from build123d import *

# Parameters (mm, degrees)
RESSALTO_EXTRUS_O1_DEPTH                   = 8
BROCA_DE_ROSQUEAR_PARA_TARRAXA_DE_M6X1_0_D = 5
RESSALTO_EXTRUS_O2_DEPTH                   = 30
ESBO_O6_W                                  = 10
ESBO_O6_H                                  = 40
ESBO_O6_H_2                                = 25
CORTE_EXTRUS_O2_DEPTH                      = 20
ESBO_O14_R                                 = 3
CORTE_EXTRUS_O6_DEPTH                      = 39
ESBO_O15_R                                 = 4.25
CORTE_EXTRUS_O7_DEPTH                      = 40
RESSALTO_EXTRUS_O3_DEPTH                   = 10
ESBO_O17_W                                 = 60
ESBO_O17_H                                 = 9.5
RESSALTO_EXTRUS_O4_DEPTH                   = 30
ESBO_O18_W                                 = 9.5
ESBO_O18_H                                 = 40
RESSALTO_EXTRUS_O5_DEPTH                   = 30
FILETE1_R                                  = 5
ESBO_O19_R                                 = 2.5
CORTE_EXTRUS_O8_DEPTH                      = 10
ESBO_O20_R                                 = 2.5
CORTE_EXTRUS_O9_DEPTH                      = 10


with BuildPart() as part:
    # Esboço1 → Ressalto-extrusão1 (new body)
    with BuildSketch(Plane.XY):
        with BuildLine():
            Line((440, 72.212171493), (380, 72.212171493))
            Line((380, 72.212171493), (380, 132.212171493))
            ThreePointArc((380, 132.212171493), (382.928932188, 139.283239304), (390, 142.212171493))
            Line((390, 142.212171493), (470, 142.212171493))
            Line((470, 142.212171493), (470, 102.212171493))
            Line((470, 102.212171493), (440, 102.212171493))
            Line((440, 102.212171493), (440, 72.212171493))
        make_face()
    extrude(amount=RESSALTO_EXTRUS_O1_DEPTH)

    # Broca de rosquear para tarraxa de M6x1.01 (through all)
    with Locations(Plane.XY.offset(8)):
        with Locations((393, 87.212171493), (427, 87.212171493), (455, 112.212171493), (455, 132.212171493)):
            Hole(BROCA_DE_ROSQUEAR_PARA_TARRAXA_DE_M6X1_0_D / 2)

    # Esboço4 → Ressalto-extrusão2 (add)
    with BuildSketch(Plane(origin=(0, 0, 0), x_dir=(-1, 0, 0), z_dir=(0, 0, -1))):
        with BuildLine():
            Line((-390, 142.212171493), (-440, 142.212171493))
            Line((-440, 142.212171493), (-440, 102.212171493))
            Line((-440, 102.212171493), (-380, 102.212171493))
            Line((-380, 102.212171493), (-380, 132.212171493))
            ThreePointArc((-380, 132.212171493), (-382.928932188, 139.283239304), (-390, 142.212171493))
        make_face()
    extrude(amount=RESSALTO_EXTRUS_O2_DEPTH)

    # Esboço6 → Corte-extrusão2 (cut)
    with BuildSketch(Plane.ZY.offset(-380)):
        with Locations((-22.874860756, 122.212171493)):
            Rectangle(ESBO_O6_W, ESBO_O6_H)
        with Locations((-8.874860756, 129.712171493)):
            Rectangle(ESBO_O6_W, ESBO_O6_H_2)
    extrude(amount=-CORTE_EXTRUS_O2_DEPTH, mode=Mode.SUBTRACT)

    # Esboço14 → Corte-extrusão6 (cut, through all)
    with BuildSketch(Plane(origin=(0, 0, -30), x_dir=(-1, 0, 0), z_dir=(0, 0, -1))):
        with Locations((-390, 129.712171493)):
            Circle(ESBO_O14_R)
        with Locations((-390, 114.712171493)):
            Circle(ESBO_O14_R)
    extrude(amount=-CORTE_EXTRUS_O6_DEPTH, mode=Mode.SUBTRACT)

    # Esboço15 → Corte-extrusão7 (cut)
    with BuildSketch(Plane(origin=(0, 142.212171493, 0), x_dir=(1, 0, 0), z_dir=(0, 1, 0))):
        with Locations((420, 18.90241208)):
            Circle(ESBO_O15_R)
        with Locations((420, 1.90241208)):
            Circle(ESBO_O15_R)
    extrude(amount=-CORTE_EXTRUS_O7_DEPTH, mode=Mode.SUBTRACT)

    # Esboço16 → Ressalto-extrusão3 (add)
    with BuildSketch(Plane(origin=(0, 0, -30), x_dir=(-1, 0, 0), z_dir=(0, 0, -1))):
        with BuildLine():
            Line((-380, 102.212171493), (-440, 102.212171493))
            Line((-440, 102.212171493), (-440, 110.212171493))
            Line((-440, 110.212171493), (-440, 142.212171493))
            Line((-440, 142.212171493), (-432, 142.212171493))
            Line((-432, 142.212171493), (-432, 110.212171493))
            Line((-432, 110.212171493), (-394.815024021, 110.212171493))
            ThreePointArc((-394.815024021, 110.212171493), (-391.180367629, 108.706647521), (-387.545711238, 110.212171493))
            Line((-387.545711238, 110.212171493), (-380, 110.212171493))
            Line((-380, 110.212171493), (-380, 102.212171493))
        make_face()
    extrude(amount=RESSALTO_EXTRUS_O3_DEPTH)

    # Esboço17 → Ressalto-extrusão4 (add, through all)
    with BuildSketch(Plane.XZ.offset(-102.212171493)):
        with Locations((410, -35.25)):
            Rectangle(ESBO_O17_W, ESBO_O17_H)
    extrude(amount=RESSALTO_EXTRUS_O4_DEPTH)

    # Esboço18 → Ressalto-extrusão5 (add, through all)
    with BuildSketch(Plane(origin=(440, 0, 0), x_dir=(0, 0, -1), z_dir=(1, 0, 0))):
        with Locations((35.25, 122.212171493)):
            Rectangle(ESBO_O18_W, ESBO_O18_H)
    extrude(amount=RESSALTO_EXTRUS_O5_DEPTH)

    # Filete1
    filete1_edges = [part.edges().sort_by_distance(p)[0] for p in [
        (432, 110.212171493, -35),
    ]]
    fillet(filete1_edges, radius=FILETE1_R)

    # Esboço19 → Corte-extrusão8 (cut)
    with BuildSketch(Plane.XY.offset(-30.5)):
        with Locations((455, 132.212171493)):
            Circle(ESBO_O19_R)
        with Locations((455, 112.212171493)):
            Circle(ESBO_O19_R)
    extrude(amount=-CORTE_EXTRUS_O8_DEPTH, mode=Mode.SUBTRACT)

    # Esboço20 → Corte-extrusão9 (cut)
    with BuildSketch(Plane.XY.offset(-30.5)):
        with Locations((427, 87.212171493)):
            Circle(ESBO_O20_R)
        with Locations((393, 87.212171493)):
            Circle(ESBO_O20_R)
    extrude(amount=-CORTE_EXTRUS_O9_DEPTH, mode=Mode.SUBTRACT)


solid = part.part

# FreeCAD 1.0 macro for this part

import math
import FreeCAD as App
import Part
import Sketcher

V = App.Vector


def edges_at(feature, points):
    """Names of the edges that pass closest to the given points."""
    edges = feature.Shape.Edges
    near = lambda p: min(range(len(edges)), key=lambda i: edges[i].distToShape(Part.Vertex(*p))[0])
    return sorted({f"Edge{near(p) + 1}" for p in points})


def add_polygon(sketch, points):
    """Adds a closed chain of lines whose ends are joined by coincident constraints."""
    first, n = sketch.GeometryCount, len(points)
    for a, b in zip(points, points[1:] + points[:1]):
        sketch.addGeometry(Part.LineSegment(App.Vector(*a, 0), App.Vector(*b, 0)), False)
    for i in range(n):
        sketch.addConstraint(Sketcher.Constraint("Coincident", first + i, 2, first + (i + 1) % n, 1))

doc = App.newDocument("Part")
body = doc.addObject("PartDesign::Body", "Body")

sketch1 = body.newObject("Sketcher::SketchObject", "Sketch")
sketch1.AttachmentSupport = (doc.getObject("XY_Plane"), [""])
sketch1.MapMode = "FlatFace"
sketch1.addGeometry(Part.LineSegment(V(380, 72.212171, 0), V(440, 72.212171, 0)), False)
sketch1.addGeometry(Part.LineSegment(V(440, 72.212171, 0), V(440, 102.212171, 0)), False)
sketch1.addGeometry(Part.LineSegment(V(440, 102.212171, 0), V(470, 102.212171, 0)), False)
sketch1.addGeometry(Part.LineSegment(V(470, 102.212171, 0), V(470, 142.212171, 0)), False)
sketch1.addGeometry(Part.LineSegment(V(470, 142.212171, 0), V(390, 142.212171, 0)), False)
sketch1.addGeometry(Part.ArcOfCircle(Part.Circle(V(390, 132.212171, 0), V(0, 0, 1), 10), math.radians(90), math.radians(180)), False)
sketch1.addGeometry(Part.LineSegment(V(380, 132.212171, 0), V(380, 72.212171, 0)), False)
sketch1.addConstraint(Sketcher.Constraint("Coincident", 0, 2, 1, 1))
sketch1.addConstraint(Sketcher.Constraint("Coincident", 1, 2, 2, 1))
sketch1.addConstraint(Sketcher.Constraint("Coincident", 2, 2, 3, 1))
sketch1.addConstraint(Sketcher.Constraint("Coincident", 3, 2, 4, 1))
sketch1.addConstraint(Sketcher.Constraint("Tangent", 4, 2, 5, 1))
sketch1.addConstraint(Sketcher.Constraint("Tangent", 5, 2, 6, 1))
sketch1.addConstraint(Sketcher.Constraint("Coincident", 6, 2, 0, 1))
sketch1.addConstraint(Sketcher.Constraint("Horizontal", 0))
sketch1.addConstraint(Sketcher.Constraint("Vertical", 1))
sketch1.addConstraint(Sketcher.Constraint("Horizontal", 2))
sketch1.addConstraint(Sketcher.Constraint("Vertical", 3))
sketch1.addConstraint(Sketcher.Constraint("Horizontal", 4))
sketch1.addConstraint(Sketcher.Constraint("Vertical", 6))
sketch1.addConstraint(Sketcher.Constraint("Equal", 2, 1))
sketch1.addConstraint(Sketcher.Constraint("Equal", 0, 6))
sketch1.addConstraint(Sketcher.Constraint("Radius", 5, 10.0))
sketch1.addConstraint(Sketcher.Constraint("DistanceX", 0, 1, 0, 2, 60.0))
sketch1.addConstraint(Sketcher.Constraint("DistanceX", 2, 1, 2, 2, 30.0))
sketch1.addConstraint(Sketcher.Constraint("DistanceX", -1, 1, 5, 3, 390.0))
sketch1.addConstraint(Sketcher.Constraint("DistanceY", -1, 1, 5, 3, 132.212171))
pad1 = body.newObject("PartDesign::Pad", "Pad")
pad1.Profile = sketch1
pad1.Length = 8

sketch2 = body.newObject("Sketcher::SketchObject", "Sketch001")
sketch2.AttachmentSupport = (doc.getObject("XY_Plane"), [""])
sketch2.MapMode = "FlatFace"
sketch2.AttachmentOffset = App.Placement(V(0, 0, 8), App.Rotation())
sketch2.addGeometry(Part.Circle(V(393, 87.212171, 0), V(0, 0, 1), 2.5), False)
sketch2.addGeometry(Part.Circle(V(427, 87.212171, 0), V(0, 0, 1), 2.5), False)
sketch2.addGeometry(Part.Circle(V(455, 112.212171, 0), V(0, 0, 1), 2.5), False)
sketch2.addGeometry(Part.Circle(V(455, 132.212171, 0), V(0, 0, 1), 2.5), False)
sketch2.addConstraint(Sketcher.Constraint("Equal", 0, 1))
sketch2.addConstraint(Sketcher.Constraint("Equal", 1, 2))
sketch2.addConstraint(Sketcher.Constraint("Equal", 2, 3))
sketch2.addConstraint(Sketcher.Constraint("Horizontal", 0, 3, 1, 3))
sketch2.addConstraint(Sketcher.Constraint("Vertical", 2, 3, 3, 3))
sketch2.addConstraint(Sketcher.Constraint("Diameter", 0, 5.0))
sketch2.addConstraint(Sketcher.Constraint("DistanceX", -1, 1, 0, 3, 393.0))
sketch2.addConstraint(Sketcher.Constraint("DistanceX", -1, 1, 1, 3, 427.0))
sketch2.addConstraint(Sketcher.Constraint("DistanceX", -1, 1, 2, 3, 455.0))
sketch2.addConstraint(Sketcher.Constraint("DistanceY", 1, 3, 2, 3, 25.0))
sketch2.addConstraint(Sketcher.Constraint("DistanceY", 2, 3, 3, 3, 20.0))
sketch2.addConstraint(Sketcher.Constraint("DistanceY", -1, 1, 0, 3, 87.212171))
doc.recompute()
hole = body.newObject("PartDesign::Hole", "Hole")
hole.Profile = sketch2
hole.ThreadType = "None"
hole.Diameter = 5
hole.DepthType = "ThroughAll"

sketch3 = body.newObject("Sketcher::SketchObject", "Sketch002")
sketch3.AttachmentSupport = (doc.getObject("XY_Plane"), [""])
sketch3.MapMode = "FlatFace"
sketch3.addGeometry(Part.LineSegment(V(390, 142.212171, 0), V(440, 142.212171, 0)), False)
sketch3.addGeometry(Part.LineSegment(V(440, 142.212171, 0), V(440, 102.212171, 0)), False)
sketch3.addGeometry(Part.LineSegment(V(440, 102.212171, 0), V(380, 102.212171, 0)), False)
sketch3.addGeometry(Part.LineSegment(V(380, 102.212171, 0), V(380, 132.212171, 0)), False)
sketch3.addGeometry(Part.ArcOfCircle(Part.Circle(V(390, 132.212171, 0), V(0, 0, 1), 10), math.radians(90), math.radians(180)), False)
sketch3.addConstraint(Sketcher.Constraint("Coincident", 0, 2, 1, 1))
sketch3.addConstraint(Sketcher.Constraint("Coincident", 1, 2, 2, 1))
sketch3.addConstraint(Sketcher.Constraint("Coincident", 2, 2, 3, 1))
sketch3.addConstraint(Sketcher.Constraint("Tangent", 3, 2, 4, 2))
sketch3.addConstraint(Sketcher.Constraint("Tangent", 4, 1, 0, 1))
sketch3.addConstraint(Sketcher.Constraint("Horizontal", 0))
sketch3.addConstraint(Sketcher.Constraint("Vertical", 1))
sketch3.addConstraint(Sketcher.Constraint("Horizontal", 2))
sketch3.addConstraint(Sketcher.Constraint("Vertical", 3))
sketch3.addConstraint(Sketcher.Constraint("Radius", 4, 10.0))
sketch3.addConstraint(Sketcher.Constraint("DistanceX", 0, 1, 0, 2, 50.0))
sketch3.addConstraint(Sketcher.Constraint("DistanceY", 1, 2, 1, 1, 40.0))
sketch3.addConstraint(Sketcher.Constraint("DistanceX", -1, 1, 4, 3, 390.0))
sketch3.addConstraint(Sketcher.Constraint("DistanceY", -1, 1, 4, 3, 132.212171))
pad2 = body.newObject("PartDesign::Pad", "Pad001")
pad2.Profile = sketch3
pad2.Length = 30
pad2.Reversed = True

sketch4 = body.newObject("Sketcher::SketchObject", "Sketch003")
sketch4.AttachmentSupport = (doc.getObject("YZ_Plane"), [""])
sketch4.MapMode = "FlatFace"
sketch4.AttachmentOffset = App.Placement(V(0, 0, 380), App.Rotation())
add_polygon(sketch4, [(142.212171, -27.874861), (102.212171, -27.874861), (102.212171, -17.874861), (142.212171, -17.874861)])
add_polygon(sketch4, [(142.212171, -13.874861), (117.212171, -13.874861), (117.212171, -3.874861), (142.212171, -3.874861)])
sketch4.addConstraint(Sketcher.Constraint("Horizontal", 0))
sketch4.addConstraint(Sketcher.Constraint("Vertical", 1))
sketch4.addConstraint(Sketcher.Constraint("Horizontal", 2))
sketch4.addConstraint(Sketcher.Constraint("Vertical", 3))
sketch4.addConstraint(Sketcher.Constraint("Horizontal", 4))
sketch4.addConstraint(Sketcher.Constraint("Vertical", 5))
sketch4.addConstraint(Sketcher.Constraint("Horizontal", 6))
sketch4.addConstraint(Sketcher.Constraint("Vertical", 7))
sketch4.addConstraint(Sketcher.Constraint("Vertical", 3, 2, 6, 2))
sketch4.addConstraint(Sketcher.Constraint("Equal", 3, 5))
sketch4.addConstraint(Sketcher.Constraint("DistanceX", 0, 2, 0, 1, 40.0))
sketch4.addConstraint(Sketcher.Constraint("DistanceX", 4, 2, 4, 1, 25.0))
sketch4.addConstraint(Sketcher.Constraint("DistanceY", 1, 1, 1, 2, 10.0))
sketch4.addConstraint(Sketcher.Constraint("DistanceY", 1, 2, 4, 2, 4.0))
sketch4.addConstraint(Sketcher.Constraint("DistanceX", -1, 1, 0, 2, 102.212171))
sketch4.addConstraint(Sketcher.Constraint("DistanceY", 0, 2, -1, 1, 27.874861))
pocket1 = body.newObject("PartDesign::Pocket", "Pocket")
pocket1.Profile = sketch4
pocket1.Length = 20
pocket1.Reversed = True

sketch5 = body.newObject("Sketcher::SketchObject", "Sketch004")
sketch5.AttachmentSupport = (doc.getObject("XY_Plane"), [""])
sketch5.MapMode = "FlatFace"
sketch5.AttachmentOffset = App.Placement(V(0, 0, -30), App.Rotation())
sketch5.addGeometry(Part.Circle(V(390, 129.712171, 0), V(0, 0, 1), 3), False)
sketch5.addGeometry(Part.Circle(V(390, 114.712171, 0), V(0, 0, 1), 3), False)
sketch5.addConstraint(Sketcher.Constraint("Equal", 0, 1))
sketch5.addConstraint(Sketcher.Constraint("Vertical", 0, 3, 1, 3))
sketch5.addConstraint(Sketcher.Constraint("Diameter", 0, 6.0))
sketch5.addConstraint(Sketcher.Constraint("DistanceX", -1, 1, 0, 3, 390.0))
sketch5.addConstraint(Sketcher.Constraint("DistanceY", 1, 3, 0, 3, 15.0))
sketch5.addConstraint(Sketcher.Constraint("DistanceY", -1, 1, 0, 3, 129.712171))
pocket2 = body.newObject("PartDesign::Pocket", "Pocket001")
pocket2.Profile = sketch5
pocket2.Type = "ThroughAll"
pocket2.Reversed = True

sketch6 = body.newObject("Sketcher::SketchObject", "Sketch005")
sketch6.AttachmentSupport = (doc.getObject("XZ_Plane"), [""])
sketch6.MapMode = "FlatFace"
sketch6.AttachmentOffset = App.Placement(V(0, 0, -142.212171), App.Rotation())
sketch6.addGeometry(Part.Circle(V(420, -18.902412, 0), V(0, 0, 1), 4.25), False)
sketch6.addGeometry(Part.Circle(V(420, -1.902412, 0), V(0, 0, 1), 4.25), False)
sketch6.addConstraint(Sketcher.Constraint("Equal", 0, 1))
sketch6.addConstraint(Sketcher.Constraint("Vertical", 0, 3, 1, 3))
sketch6.addConstraint(Sketcher.Constraint("Diameter", 0, 8.5))
sketch6.addConstraint(Sketcher.Constraint("DistanceX", -1, 1, 0, 3, 420.0))
sketch6.addConstraint(Sketcher.Constraint("DistanceY", 0, 3, 1, 3, 17.0))
sketch6.addConstraint(Sketcher.Constraint("DistanceY", 0, 3, -1, 1, 18.902412))
pocket3 = body.newObject("PartDesign::Pocket", "Pocket002")
pocket3.Profile = sketch6
pocket3.Length = 40
pocket3.Reversed = True

sketch7 = body.newObject("Sketcher::SketchObject", "Sketch006")
sketch7.AttachmentSupport = (doc.getObject("XY_Plane"), [""])
sketch7.MapMode = "FlatFace"
sketch7.AttachmentOffset = App.Placement(V(0, 0, -30), App.Rotation())
sketch7.addGeometry(Part.LineSegment(V(440, 102.212171, 0), V(380, 102.212171, 0)), False)
sketch7.addGeometry(Part.LineSegment(V(380, 102.212171, 0), V(380, 110.212171, 0)), False)
sketch7.addGeometry(Part.LineSegment(V(380, 110.212171, 0), V(387.545711, 110.212171, 0)), False)
sketch7.addGeometry(Part.ArcOfCircle(Part.Circle(V(391.180368, 113.846828, 0), V(0, 0, 1), 5.14018), math.radians(-135), math.radians(-45)), False)
sketch7.addGeometry(Part.LineSegment(V(394.815024, 110.212171, 0), V(432, 110.212171, 0)), False)
sketch7.addGeometry(Part.LineSegment(V(432, 110.212171, 0), V(432, 142.212171, 0)), False)
sketch7.addGeometry(Part.LineSegment(V(432, 142.212171, 0), V(440, 142.212171, 0)), False)
sketch7.addGeometry(Part.LineSegment(V(440, 142.212171, 0), V(440, 102.212171, 0)), False)
sketch7.addConstraint(Sketcher.Constraint("Coincident", 0, 2, 1, 1))
sketch7.addConstraint(Sketcher.Constraint("Coincident", 1, 2, 2, 1))
sketch7.addConstraint(Sketcher.Constraint("Coincident", 2, 2, 3, 1))
sketch7.addConstraint(Sketcher.Constraint("Coincident", 3, 2, 4, 1))
sketch7.addConstraint(Sketcher.Constraint("Coincident", 4, 2, 5, 1))
sketch7.addConstraint(Sketcher.Constraint("Coincident", 5, 2, 6, 1))
sketch7.addConstraint(Sketcher.Constraint("Coincident", 6, 2, 7, 1))
sketch7.addConstraint(Sketcher.Constraint("Coincident", 7, 2, 0, 1))
sketch7.addConstraint(Sketcher.Constraint("Horizontal", 0))
sketch7.addConstraint(Sketcher.Constraint("Vertical", 1))
sketch7.addConstraint(Sketcher.Constraint("Horizontal", 2))
sketch7.addConstraint(Sketcher.Constraint("Horizontal", 4))
sketch7.addConstraint(Sketcher.Constraint("Vertical", 5))
sketch7.addConstraint(Sketcher.Constraint("Horizontal", 6))
sketch7.addConstraint(Sketcher.Constraint("Vertical", 7))
sketch7.addConstraint(Sketcher.Constraint("Horizontal", 2, 2, 3, 2))
sketch7.addConstraint(Sketcher.Constraint("Equal", 6, 1))
sketch7.addConstraint(Sketcher.Constraint("DistanceX", 0, 2, 0, 1, 60.0))
sketch7.addConstraint(Sketcher.Constraint("DistanceX", 6, 1, 6, 2, 8.0))
sketch7.addConstraint(Sketcher.Constraint("DistanceY", 5, 1, 5, 2, 32.0))
sketch7.addConstraint(Sketcher.Constraint("DistanceX", -1, 1, 0, 2, 380.0))
sketch7.addConstraint(Sketcher.Constraint("Radius", 3, 5.14018))
sketch7.addConstraint(Sketcher.Constraint("DistanceX", 2, 1, 2, 2, 7.545711))
sketch7.addConstraint(Sketcher.Constraint("DistanceX", 4, 1, 4, 2, 37.184976))
sketch7.addConstraint(Sketcher.Constraint("DistanceY", -1, 1, 0, 2, 102.212171))
pad3 = body.newObject("PartDesign::Pad", "Pad002")
pad3.Profile = sketch7
pad3.Length = 10
pad3.Reversed = True

sketch8 = body.newObject("Sketcher::SketchObject", "Sketch007")
sketch8.AttachmentSupport = (doc.getObject("XZ_Plane"), [""])
sketch8.MapMode = "FlatFace"
sketch8.AttachmentOffset = App.Placement(V(0, 0, -102.212171), App.Rotation())
add_polygon(sketch8, [(380, -30.5), (380, -40), (440, -40), (440, -30.5)])
sketch8.addConstraint(Sketcher.Constraint("Vertical", 0))
sketch8.addConstraint(Sketcher.Constraint("Horizontal", 1))
sketch8.addConstraint(Sketcher.Constraint("Vertical", 2))
sketch8.addConstraint(Sketcher.Constraint("Horizontal", 3))
sketch8.addConstraint(Sketcher.Constraint("DistanceX", 1, 1, 1, 2, 60.0))
sketch8.addConstraint(Sketcher.Constraint("DistanceY", 0, 2, 0, 1, 9.5))
sketch8.addConstraint(Sketcher.Constraint("DistanceX", -1, 1, 0, 2, 380.0))
sketch8.addConstraint(Sketcher.Constraint("DistanceY", 0, 2, -1, 1, 40.0))
pad4 = body.newObject("PartDesign::Pad", "Pad003")
pad4.Profile = sketch8
pad4.Length = 30

sketch9 = body.newObject("Sketcher::SketchObject", "Sketch008")
sketch9.AttachmentSupport = (doc.getObject("YZ_Plane"), [""])
sketch9.MapMode = "FlatFace"
sketch9.AttachmentOffset = App.Placement(V(0, 0, 440), App.Rotation())
add_polygon(sketch9, [(142.212171, -30.5), (102.212171, -30.5), (102.212171, -40), (142.212171, -40)])
sketch9.addConstraint(Sketcher.Constraint("Horizontal", 0))
sketch9.addConstraint(Sketcher.Constraint("Vertical", 1))
sketch9.addConstraint(Sketcher.Constraint("Horizontal", 2))
sketch9.addConstraint(Sketcher.Constraint("Vertical", 3))
sketch9.addConstraint(Sketcher.Constraint("DistanceX", 0, 2, 0, 1, 40.0))
sketch9.addConstraint(Sketcher.Constraint("DistanceY", 1, 2, 1, 1, 9.5))
sketch9.addConstraint(Sketcher.Constraint("DistanceY", 1, 2, -1, 1, 40.0))
sketch9.addConstraint(Sketcher.Constraint("DistanceX", -1, 1, 0, 2, 102.212171))
pad5 = body.newObject("PartDesign::Pad", "Pad004")
pad5.Profile = sketch9
pad5.Length = 30
doc.recompute()

fillet = body.newObject("PartDesign::Fillet", "Fillet")
fillet.Base = (pad5, edges_at(pad5, [(432, 110.212, -35)]))
fillet.Radius = 5

sketch10 = body.newObject("Sketcher::SketchObject", "Sketch009")
sketch10.AttachmentSupport = (doc.getObject("XY_Plane"), [""])
sketch10.MapMode = "FlatFace"
sketch10.AttachmentOffset = App.Placement(V(0, 0, -30.5), App.Rotation())
sketch10.addGeometry(Part.Circle(V(455, 132.212171, 0), V(0, 0, 1), 2.5), False)
sketch10.addGeometry(Part.Circle(V(455, 112.212171, 0), V(0, 0, 1), 2.5), False)
sketch10.addConstraint(Sketcher.Constraint("Equal", 0, 1))
sketch10.addConstraint(Sketcher.Constraint("Vertical", 0, 3, 1, 3))
sketch10.addConstraint(Sketcher.Constraint("Diameter", 0, 5.0))
sketch10.addConstraint(Sketcher.Constraint("DistanceX", -1, 1, 0, 3, 455.0))
sketch10.addConstraint(Sketcher.Constraint("DistanceY", 1, 3, 0, 3, 20.0))
sketch10.addConstraint(Sketcher.Constraint("DistanceY", -1, 1, 0, 3, 132.212171))
pocket4 = body.newObject("PartDesign::Pocket", "Pocket003")
pocket4.Profile = sketch10
pocket4.Length = 10

sketch11 = body.newObject("Sketcher::SketchObject", "Sketch010")
sketch11.AttachmentSupport = (doc.getObject("XY_Plane"), [""])
sketch11.MapMode = "FlatFace"
sketch11.AttachmentOffset = App.Placement(V(0, 0, -30.5), App.Rotation())
sketch11.addGeometry(Part.Circle(V(427, 87.212171, 0), V(0, 0, 1), 2.5), False)
sketch11.addGeometry(Part.Circle(V(393, 87.212171, 0), V(0, 0, 1), 2.5), False)
sketch11.addConstraint(Sketcher.Constraint("Equal", 0, 1))
sketch11.addConstraint(Sketcher.Constraint("Horizontal", 0, 3, 1, 3))
sketch11.addConstraint(Sketcher.Constraint("Diameter", 0, 5.0))
sketch11.addConstraint(Sketcher.Constraint("DistanceX", -1, 1, 0, 3, 427.0))
sketch11.addConstraint(Sketcher.Constraint("DistanceX", -1, 1, 1, 3, 393.0))
sketch11.addConstraint(Sketcher.Constraint("DistanceY", -1, 1, 0, 3, 87.212171))
pocket5 = body.newObject("PartDesign::Pocket", "Pocket004")
pocket5.Profile = sketch11
pocket5.Length = 10

doc.recompute()
